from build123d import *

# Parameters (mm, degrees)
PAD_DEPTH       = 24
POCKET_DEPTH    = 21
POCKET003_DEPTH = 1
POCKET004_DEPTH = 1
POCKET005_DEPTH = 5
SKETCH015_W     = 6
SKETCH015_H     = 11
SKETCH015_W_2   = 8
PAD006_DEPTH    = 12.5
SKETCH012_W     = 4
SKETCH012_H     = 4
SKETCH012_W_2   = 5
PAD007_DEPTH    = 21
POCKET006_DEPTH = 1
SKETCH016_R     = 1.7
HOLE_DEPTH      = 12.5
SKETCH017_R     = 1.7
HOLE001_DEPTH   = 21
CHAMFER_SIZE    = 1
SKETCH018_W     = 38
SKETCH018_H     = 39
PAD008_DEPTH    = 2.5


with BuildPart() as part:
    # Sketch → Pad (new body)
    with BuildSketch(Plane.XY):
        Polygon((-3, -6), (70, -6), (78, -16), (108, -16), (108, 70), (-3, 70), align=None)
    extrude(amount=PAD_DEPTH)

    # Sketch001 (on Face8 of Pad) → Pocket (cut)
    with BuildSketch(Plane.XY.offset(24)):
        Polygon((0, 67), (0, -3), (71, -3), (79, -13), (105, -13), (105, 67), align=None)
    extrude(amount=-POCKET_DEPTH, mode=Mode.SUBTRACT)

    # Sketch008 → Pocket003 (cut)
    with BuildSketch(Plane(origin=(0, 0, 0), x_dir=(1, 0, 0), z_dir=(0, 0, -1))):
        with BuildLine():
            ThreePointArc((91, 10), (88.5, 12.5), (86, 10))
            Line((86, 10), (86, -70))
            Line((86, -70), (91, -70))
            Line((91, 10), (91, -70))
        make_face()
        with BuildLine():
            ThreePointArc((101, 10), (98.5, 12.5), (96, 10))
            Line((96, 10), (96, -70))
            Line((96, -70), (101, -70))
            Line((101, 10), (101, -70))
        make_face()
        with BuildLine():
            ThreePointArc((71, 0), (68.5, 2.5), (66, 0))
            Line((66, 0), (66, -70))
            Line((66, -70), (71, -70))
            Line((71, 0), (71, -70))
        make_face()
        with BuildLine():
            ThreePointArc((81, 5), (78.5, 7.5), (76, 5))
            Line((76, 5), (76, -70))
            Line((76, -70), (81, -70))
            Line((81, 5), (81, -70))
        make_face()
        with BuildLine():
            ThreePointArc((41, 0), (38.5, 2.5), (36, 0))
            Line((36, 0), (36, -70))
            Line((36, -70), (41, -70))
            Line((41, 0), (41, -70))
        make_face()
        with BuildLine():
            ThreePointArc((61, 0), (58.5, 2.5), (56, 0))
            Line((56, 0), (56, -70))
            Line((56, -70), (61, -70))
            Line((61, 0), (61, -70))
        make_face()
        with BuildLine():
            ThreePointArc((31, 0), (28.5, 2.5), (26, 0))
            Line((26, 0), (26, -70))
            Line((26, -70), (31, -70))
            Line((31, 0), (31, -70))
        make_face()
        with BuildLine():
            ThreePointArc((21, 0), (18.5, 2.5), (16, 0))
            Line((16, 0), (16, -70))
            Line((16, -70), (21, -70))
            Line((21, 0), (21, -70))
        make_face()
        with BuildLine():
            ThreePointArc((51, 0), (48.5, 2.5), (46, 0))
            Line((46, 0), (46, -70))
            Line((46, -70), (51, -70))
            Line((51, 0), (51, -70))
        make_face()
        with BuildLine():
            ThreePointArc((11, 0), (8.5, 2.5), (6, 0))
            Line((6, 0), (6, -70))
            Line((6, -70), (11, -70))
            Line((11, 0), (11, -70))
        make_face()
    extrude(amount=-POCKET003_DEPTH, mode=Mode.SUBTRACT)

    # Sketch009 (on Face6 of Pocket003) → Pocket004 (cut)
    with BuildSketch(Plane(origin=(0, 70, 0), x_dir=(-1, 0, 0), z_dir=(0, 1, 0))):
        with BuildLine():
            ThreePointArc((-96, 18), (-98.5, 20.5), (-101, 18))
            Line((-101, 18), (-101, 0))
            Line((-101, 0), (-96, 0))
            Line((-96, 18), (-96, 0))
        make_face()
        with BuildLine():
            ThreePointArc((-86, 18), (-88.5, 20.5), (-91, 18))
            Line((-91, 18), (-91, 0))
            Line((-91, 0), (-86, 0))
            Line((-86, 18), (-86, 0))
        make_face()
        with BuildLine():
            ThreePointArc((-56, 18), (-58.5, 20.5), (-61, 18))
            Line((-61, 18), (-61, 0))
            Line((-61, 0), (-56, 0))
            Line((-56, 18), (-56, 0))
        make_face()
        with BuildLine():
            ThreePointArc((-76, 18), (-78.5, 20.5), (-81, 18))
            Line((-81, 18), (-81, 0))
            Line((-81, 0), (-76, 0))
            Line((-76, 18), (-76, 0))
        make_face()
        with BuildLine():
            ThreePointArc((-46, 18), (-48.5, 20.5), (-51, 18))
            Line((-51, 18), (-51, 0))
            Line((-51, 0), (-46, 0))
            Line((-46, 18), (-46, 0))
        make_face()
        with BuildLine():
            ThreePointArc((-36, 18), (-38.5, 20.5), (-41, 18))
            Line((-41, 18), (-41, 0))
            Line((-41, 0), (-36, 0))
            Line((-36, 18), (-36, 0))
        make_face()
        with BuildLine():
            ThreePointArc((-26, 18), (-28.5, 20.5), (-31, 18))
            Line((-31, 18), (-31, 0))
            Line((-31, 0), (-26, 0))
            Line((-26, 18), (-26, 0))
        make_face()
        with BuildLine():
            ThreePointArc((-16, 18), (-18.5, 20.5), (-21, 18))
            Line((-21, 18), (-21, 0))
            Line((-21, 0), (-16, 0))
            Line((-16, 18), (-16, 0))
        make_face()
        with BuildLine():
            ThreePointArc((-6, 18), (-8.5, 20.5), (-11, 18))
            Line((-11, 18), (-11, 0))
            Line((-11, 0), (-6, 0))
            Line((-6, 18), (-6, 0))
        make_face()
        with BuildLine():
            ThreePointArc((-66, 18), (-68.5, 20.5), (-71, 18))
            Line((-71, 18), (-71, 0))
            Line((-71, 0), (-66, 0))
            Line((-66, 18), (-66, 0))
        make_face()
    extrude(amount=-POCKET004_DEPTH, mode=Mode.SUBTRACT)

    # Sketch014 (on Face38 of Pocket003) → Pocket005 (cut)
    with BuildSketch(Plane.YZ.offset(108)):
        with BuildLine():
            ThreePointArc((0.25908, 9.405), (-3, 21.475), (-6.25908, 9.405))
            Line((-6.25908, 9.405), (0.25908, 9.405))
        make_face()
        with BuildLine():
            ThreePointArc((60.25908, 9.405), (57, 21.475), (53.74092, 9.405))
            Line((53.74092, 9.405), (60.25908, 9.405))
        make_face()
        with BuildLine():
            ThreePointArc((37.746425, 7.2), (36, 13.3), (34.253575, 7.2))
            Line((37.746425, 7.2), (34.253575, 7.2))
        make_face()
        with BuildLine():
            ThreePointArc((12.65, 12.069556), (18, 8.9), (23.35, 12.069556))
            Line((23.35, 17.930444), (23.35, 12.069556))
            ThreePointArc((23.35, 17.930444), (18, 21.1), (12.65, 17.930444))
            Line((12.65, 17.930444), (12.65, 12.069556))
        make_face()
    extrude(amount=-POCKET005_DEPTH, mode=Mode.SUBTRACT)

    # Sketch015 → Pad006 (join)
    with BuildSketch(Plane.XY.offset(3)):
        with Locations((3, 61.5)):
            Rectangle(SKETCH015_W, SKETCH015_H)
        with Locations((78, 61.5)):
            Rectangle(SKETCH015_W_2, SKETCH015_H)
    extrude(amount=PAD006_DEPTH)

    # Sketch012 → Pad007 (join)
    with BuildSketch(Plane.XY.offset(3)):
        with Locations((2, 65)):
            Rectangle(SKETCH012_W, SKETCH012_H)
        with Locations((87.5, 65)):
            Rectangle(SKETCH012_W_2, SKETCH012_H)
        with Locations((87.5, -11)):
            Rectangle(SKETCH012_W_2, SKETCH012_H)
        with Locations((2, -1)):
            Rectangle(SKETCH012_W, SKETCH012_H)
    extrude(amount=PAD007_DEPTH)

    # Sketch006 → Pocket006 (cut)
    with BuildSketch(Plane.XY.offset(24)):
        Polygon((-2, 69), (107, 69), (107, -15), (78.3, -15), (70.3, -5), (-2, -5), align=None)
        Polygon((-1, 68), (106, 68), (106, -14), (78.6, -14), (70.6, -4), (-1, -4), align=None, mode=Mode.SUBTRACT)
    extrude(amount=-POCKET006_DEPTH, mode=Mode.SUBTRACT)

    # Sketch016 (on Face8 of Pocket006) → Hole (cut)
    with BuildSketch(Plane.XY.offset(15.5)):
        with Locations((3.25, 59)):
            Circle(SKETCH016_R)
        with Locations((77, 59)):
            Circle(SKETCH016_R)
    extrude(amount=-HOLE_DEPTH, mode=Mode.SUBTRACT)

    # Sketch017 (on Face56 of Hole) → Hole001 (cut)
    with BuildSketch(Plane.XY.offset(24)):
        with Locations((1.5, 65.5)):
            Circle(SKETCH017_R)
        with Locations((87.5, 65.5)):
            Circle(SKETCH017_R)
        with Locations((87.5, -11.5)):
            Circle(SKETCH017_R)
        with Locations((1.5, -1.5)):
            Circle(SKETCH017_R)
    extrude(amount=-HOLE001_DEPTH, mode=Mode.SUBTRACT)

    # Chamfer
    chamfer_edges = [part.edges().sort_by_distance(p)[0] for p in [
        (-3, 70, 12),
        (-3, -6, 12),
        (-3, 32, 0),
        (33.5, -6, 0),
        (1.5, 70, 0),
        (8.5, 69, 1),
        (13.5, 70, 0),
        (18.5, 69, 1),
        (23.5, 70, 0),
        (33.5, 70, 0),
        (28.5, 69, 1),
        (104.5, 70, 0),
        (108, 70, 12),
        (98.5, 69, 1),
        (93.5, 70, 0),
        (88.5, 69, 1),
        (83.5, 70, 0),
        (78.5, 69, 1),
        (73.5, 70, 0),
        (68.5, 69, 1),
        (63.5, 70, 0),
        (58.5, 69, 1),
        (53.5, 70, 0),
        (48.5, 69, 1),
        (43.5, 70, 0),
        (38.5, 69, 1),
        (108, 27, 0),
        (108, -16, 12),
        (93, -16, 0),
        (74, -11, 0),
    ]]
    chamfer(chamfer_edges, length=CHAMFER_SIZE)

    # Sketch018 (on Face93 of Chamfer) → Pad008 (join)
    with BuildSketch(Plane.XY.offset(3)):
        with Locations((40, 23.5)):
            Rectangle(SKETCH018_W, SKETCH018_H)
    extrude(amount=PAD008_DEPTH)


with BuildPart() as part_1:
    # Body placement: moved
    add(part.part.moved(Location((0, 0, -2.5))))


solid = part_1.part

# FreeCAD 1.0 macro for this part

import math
import FreeCAD as App
import Part
import Sketcher
Q = App.Units.Quantity


def edges_at(feature, points):
    """Names of the edges that pass closest to the given points."""
    edges = feature.Shape.Edges
    near = lambda p: min(range(len(edges)), key=lambda i: edges[i].distToShape(Part.Vertex(*p))[0])
    return sorted({f"Edge{near(p) + 1}" for p in points})


def add_polygon(sketch, points):
    """Adds a closed chain of lines whose ends are joined by coincident constraints."""
    first, n = sketch.GeometryCount, len(points)
    for a, b in zip(points, points[1:] + points[:1]):
        sketch.addGeometry(Part.LineSegment(App.Vector(*a, 0), App.Vector(*b, 0)), False)
    for i in range(n):
        sketch.addConstraint(Sketcher.Constraint("Coincident", first + i, 2, first + (i + 1) % n, 1))

doc = App.newDocument("Part")
params = doc.addObject("Spreadsheet::Sheet", "Params")
for row, (alias, value) in enumerate([
    ("sketch1_width", "73 mm"),
    ("sketch1_width2", "30 mm"),
    ("sketch1_width3", "111 mm"),
    ("sketch1_height", "86 mm"),
    ("sketch1_height2", "76 mm"),
    ("pad1_length", "24 mm"),
    ("sketch2_width", "71 mm"),
    ("sketch2_width2", "26 mm"),
    ("sketch2_width3", "105 mm"),
    ("sketch2_height", "70 mm"),
    ("sketch2_height2", "80 mm"),
    ("pocket1_length", "21 mm"),
    ("sketch3_radius", "2.5 mm"),
    ("sketch3_height", "80 mm"),
    ("sketch3_height2", "70 mm"),
    ("sketch3_height3", "75 mm"),
    ("pocket2_length", "1 mm"),
    ("sketch4_radius", "2.5 mm"),
    ("sketch4_height", "18 mm"),
    ("pocket3_length", "1 mm"),
    ("sketch5_radius", "3.3 mm"),
    ("sketch5_radius2", "6.1 mm"),
    ("pocket4_length", "5 mm"),
    ("sketch6_width", "6 mm"),
    ("sketch6_width2", "8 mm"),
    ("sketch6_height", "11 mm"),
    ("pad2_length", "12.5 mm"),
    ("sketch7_width", "4 mm"),
    ("sketch7_width2", "5 mm"),
    ("pad3_length", "21 mm"),
    ("sketch8_width", "109 mm"),
    ("sketch8_width2", "107 mm"),
    ("sketch8_height", "74 mm"),
    ("sketch8_height2", "84 mm"),
    ("sketch8_height3", "82 mm"),
    ("pocket5_length", "1 mm"),
    ("sketch9_diameter", "3.4 mm"),
    ("pocket6_length", "12.5 mm"),
    ("sketch10_diameter", "3.4 mm"),
    ("pocket7_length", "21 mm"),
    ("chamfer_size", "1 mm"),
    ("sketch11_width", "38 mm"),
    ("sketch11_height", "39 mm"),
    ("pad4_length", "2.5 mm"),
], start=1):
    params.set(f"A{row}", alias)
    params.set(f"B{row}", "=" + value)
    params.setAlias(f"B{row}", alias)

body = doc.addObject("PartDesign::Body", "Body")

sketch1 = body.newObject("Sketcher::SketchObject", "Sketch")
sketch1.AttachmentSupport = (doc.getObject("XY_Plane"), [""])
sketch1.MapMode = "FlatFace"
add_polygon(sketch1, [(-3, -6), (70, -6), (78, -16), (108, -16), (108, 70), (-3, 70)])
sketch1.addConstraint([
    Sketcher.Constraint("Horizontal", 0),
    Sketcher.Constraint("Horizontal", 2),
    Sketcher.Constraint("Vertical", 3),
    Sketcher.Constraint("Horizontal", 4),
    Sketcher.Constraint("Vertical", 5),
    Sketcher.Constraint("DistanceX", 0, 1, 0, 2, Q("73 mm")),
    Sketcher.Constraint("DistanceX", 2, 1, 2, 2, Q("30 mm")),
    Sketcher.Constraint("DistanceX", 4, 2, 4, 1, Q("111 mm")),
    Sketcher.Constraint("DistanceY", 3, 1, 3, 2, Q("86 mm")),
    Sketcher.Constraint("DistanceY", 5, 2, 5, 1, Q("76 mm")),
    Sketcher.Constraint("DistanceX", -1, 1, 0, 2, Q("70 mm")),
    Sketcher.Constraint("DistanceY", 0, 2, -1, 1, Q("6 mm")),
])
sketch1.setExpression("Constraints[11]", "Params.sketch1_width")
sketch1.setExpression("Constraints[12]", "Params.sketch1_width2")
sketch1.setExpression("Constraints[13]", "Params.sketch1_width3")
sketch1.setExpression("Constraints[14]", "Params.sketch1_height")
sketch1.setExpression("Constraints[15]", "Params.sketch1_height2")
pad1 = body.newObject("PartDesign::Pad", "Pad")
pad1.Profile = sketch1
pad1.setExpression("Length", "Params.pad1_length")

sketch2 = body.newObject("Sketcher::SketchObject", "Sketch001")
sketch2.AttachmentSupport = (doc.getObject("XY_Plane"), [""])
sketch2.MapMode = "FlatFace"
sketch2.AttachmentOffset = App.Placement(App.Vector(0, 0, 24), App.Rotation())
add_polygon(sketch2, [(0, 67), (0, -3), (71, -3), (79, -13), (105, -13), (105, 67)])
sketch2.addConstraint([
    Sketcher.Constraint("Vertical", 0),
    Sketcher.Constraint("Horizontal", 1),
    Sketcher.Constraint("Horizontal", 3),
    Sketcher.Constraint("Vertical", 4),
    Sketcher.Constraint("Horizontal", 5),
    Sketcher.Constraint("PointOnObject", 0, 2, -2),
    Sketcher.Constraint("DistanceX", 1, 1, 1, 2, Q("71 mm")),
    Sketcher.Constraint("DistanceX", 3, 1, 3, 2, Q("26 mm")),
    Sketcher.Constraint("DistanceX", 5, 2, 5, 1, Q("105 mm")),
    Sketcher.Constraint("DistanceY", 0, 2, 0, 1, Q("70 mm")),
    Sketcher.Constraint("DistanceY", 4, 1, 4, 2, Q("80 mm")),
    Sketcher.Constraint("DistanceY", 0, 2, -1, 1, Q("3 mm")),
])
sketch2.setExpression("Constraints[12]", "Params.sketch2_width")
sketch2.setExpression("Constraints[13]", "Params.sketch2_width2")
sketch2.setExpression("Constraints[14]", "Params.sketch2_width3")
sketch2.setExpression("Constraints[15]", "Params.sketch2_height")
sketch2.setExpression("Constraints[16]", "Params.sketch2_height2")
pocket1 = body.newObject("PartDesign::Pocket", "Pocket")
pocket1.Profile = sketch2
pocket1.setExpression("Length", "Params.pocket1_length")

sketch3 = body.newObject("Sketcher::SketchObject", "Sketch002")
sketch3.AttachmentSupport = (doc.getObject("XY_Plane"), [""])
sketch3.MapMode = "FlatFace"
sketch3.addGeometry([
    Part.ArcOfCircle(Part.Circle(App.Vector(88.5, -10, 0), App.Vector(0, 0, 1), 2.5), math.radians(180), math.radians(360)),
    Part.LineSegment(App.Vector(86, -10, 0), App.Vector(86, 70, 0)),
    Part.LineSegment(App.Vector(86, 70, 0), App.Vector(91, 70, 0)),
    Part.LineSegment(App.Vector(91, 70, 0), App.Vector(91, -10, 0)),
    Part.ArcOfCircle(Part.Circle(App.Vector(98.5, -10, 0), App.Vector(0, 0, 1), 2.5), math.radians(180), math.radians(360)),
    Part.LineSegment(App.Vector(96, -10, 0), App.Vector(96, 70, 0)),
    Part.LineSegment(App.Vector(96, 70, 0), App.Vector(101, 70, 0)),
    Part.LineSegment(App.Vector(101, 70, 0), App.Vector(101, -10, 0)),
    Part.ArcOfCircle(Part.Circle(App.Vector(68.5, 0, 0), App.Vector(0, 0, 1), 2.5), math.radians(180), math.radians(360)),
    Part.LineSegment(App.Vector(66, 0, 0), App.Vector(66, 70, 0)),
    Part.LineSegment(App.Vector(66, 70, 0), App.Vector(71, 70, 0)),
    Part.LineSegment(App.Vector(71, 70, 0), App.Vector(71, 0, 0)),
    Part.ArcOfCircle(Part.Circle(App.Vector(78.5, -5, 0), App.Vector(0, 0, 1), 2.5), math.radians(180), math.radians(360)),
    Part.LineSegment(App.Vector(76, -5, 0), App.Vector(76, 70, 0)),
    Part.LineSegment(App.Vector(76, 70, 0), App.Vector(81, 70, 0)),
    Part.LineSegment(App.Vector(81, 70, 0), App.Vector(81, -5, 0)),
    Part.ArcOfCircle(Part.Circle(App.Vector(38.5, 0, 0), App.Vector(0, 0, 1), 2.5), math.radians(180), math.radians(360)),
    Part.LineSegment(App.Vector(36, 0, 0), App.Vector(36, 70, 0)),
    Part.LineSegment(App.Vector(36, 70, 0), App.Vector(41, 70, 0)),
    Part.LineSegment(App.Vector(41, 70, 0), App.Vector(41, 0, 0)),
    Part.ArcOfCircle(Part.Circle(App.Vector(58.5, 0, 0), App.Vector(0, 0, 1), 2.5), math.radians(180), math.radians(360)),
    Part.LineSegment(App.Vector(56, 0, 0), App.Vector(56, 70, 0)),
    Part.LineSegment(App.Vector(56, 70, 0), App.Vector(61, 70, 0)),
    Part.LineSegment(App.Vector(61, 70, 0), App.Vector(61, 0, 0)),
    Part.ArcOfCircle(Part.Circle(App.Vector(28.5, 0, 0), App.Vector(0, 0, 1), 2.5), math.radians(180), math.radians(360)),
    Part.LineSegment(App.Vector(26, 0, 0), App.Vector(26, 70, 0)),
    Part.LineSegment(App.Vector(26, 70, 0), App.Vector(31, 70, 0)),
    Part.LineSegment(App.Vector(31, 70, 0), App.Vector(31, 0, 0)),
    Part.ArcOfCircle(Part.Circle(App.Vector(18.5, 0, 0), App.Vector(0, 0, 1), 2.5), math.radians(180), math.radians(360)),
    Part.LineSegment(App.Vector(16, 0, 0), App.Vector(16, 70, 0)),
    Part.LineSegment(App.Vector(16, 70, 0), App.Vector(21, 70, 0)),
    Part.LineSegment(App.Vector(21, 70, 0), App.Vector(21, 0, 0)),
    Part.ArcOfCircle(Part.Circle(App.Vector(48.5, 0, 0), App.Vector(0, 0, 1), 2.5), math.radians(180), math.radians(360)),
    Part.LineSegment(App.Vector(46, 0, 0), App.Vector(46, 70, 0)),
    Part.LineSegment(App.Vector(46, 70, 0), App.Vector(51, 70, 0)),
    Part.LineSegment(App.Vector(51, 70, 0), App.Vector(51, 0, 0)),
    Part.ArcOfCircle(Part.Circle(App.Vector(8.5, 0, 0), App.Vector(0, 0, 1), 2.5), math.radians(180), math.radians(360)),
    Part.LineSegment(App.Vector(6, 0, 0), App.Vector(6, 70, 0)),
    Part.LineSegment(App.Vector(6, 70, 0), App.Vector(11, 70, 0)),
    Part.LineSegment(App.Vector(11, 70, 0), App.Vector(11, 0, 0)),
], False)
sketch3.addConstraint([
    Sketcher.Constraint("Tangent", 0, 1, 1, 1),
    Sketcher.Constraint("Coincident", 1, 2, 2, 1),
    Sketcher.Constraint("Coincident", 2, 2, 3, 1),
    Sketcher.Constraint("Tangent", 3, 2, 0, 2),
    Sketcher.Constraint("Tangent", 4, 1, 5, 1),
    Sketcher.Constraint("Coincident", 5, 2, 6, 1),
    Sketcher.Constraint("Coincident", 6, 2, 7, 1),
    Sketcher.Constraint("Tangent", 7, 2, 4, 2),
    Sketcher.Constraint("Tangent", 8, 1, 9, 1),
    Sketcher.Constraint("Coincident", 9, 2, 10, 1),
    Sketcher.Constraint("Coincident", 10, 2, 11, 1),
    Sketcher.Constraint("Tangent", 11, 2, 8, 2),
    Sketcher.Constraint("Tangent", 12, 1, 13, 1),
    Sketcher.Constraint("Coincident", 13, 2, 14, 1),
    Sketcher.Constraint("Coincident", 14, 2, 15, 1),
    Sketcher.Constraint("Tangent", 15, 2, 12, 2),
    Sketcher.Constraint("Tangent", 16, 1, 17, 1),
    Sketcher.Constraint("Coincident", 17, 2, 18, 1),
    Sketcher.Constraint("Coincident", 18, 2, 19, 1),
    Sketcher.Constraint("Tangent", 19, 2, 16, 2),
    Sketcher.Constraint("Tangent", 20, 1, 21, 1),
    Sketcher.Constraint("Coincident", 21, 2, 22, 1),
    Sketcher.Constraint("Coincident", 22, 2, 23, 1),
    Sketcher.Constraint("Tangent", 23, 2, 20, 2),
    Sketcher.Constraint("Tangent", 24, 1, 25, 1),
    Sketcher.Constraint("Coincident", 25, 2, 26, 1),
    Sketcher.Constraint("Coincident", 26, 2, 27, 1),
    Sketcher.Constraint("Tangent", 27, 2, 24, 2),
    Sketcher.Constraint("Tangent", 28, 1, 29, 1),
    Sketcher.Constraint("Coincident", 29, 2, 30, 1),
    Sketcher.Constraint("Coincident", 30, 2, 31, 1),
    Sketcher.Constraint("Tangent", 31, 2, 28, 2),
    Sketcher.Constraint("Tangent", 32, 1, 33, 1),
    Sketcher.Constraint("Coincident", 33, 2, 34, 1),
    Sketcher.Constraint("Coincident", 34, 2, 35, 1),
    Sketcher.Constraint("Tangent", 35, 2, 32, 2),
    Sketcher.Constraint("Tangent", 36, 1, 37, 1),
    Sketcher.Constraint("Coincident", 37, 2, 38, 1),
    Sketcher.Constraint("Coincident", 38, 2, 39, 1),
    Sketcher.Constraint("Tangent", 39, 2, 36, 2),
    Sketcher.Constraint("Vertical", 1),
    Sketcher.Constraint("Horizontal", 2),
    Sketcher.Constraint("Vertical", 3),
    Sketcher.Constraint("Vertical", 5),
    Sketcher.Constraint("Horizontal", 6),
    Sketcher.Constraint("Vertical", 7),
    Sketcher.Constraint("Vertical", 9),
    Sketcher.Constraint("Horizontal", 10),
    Sketcher.Constraint("Vertical", 11),
    Sketcher.Constraint("Vertical", 13),
    Sketcher.Constraint("Horizontal", 14),
    Sketcher.Constraint("Vertical", 15),
    Sketcher.Constraint("Vertical", 17),
    Sketcher.Constraint("Horizontal", 18),
    Sketcher.Constraint("Vertical", 19),
    Sketcher.Constraint("Vertical", 21),
    Sketcher.Constraint("Horizontal", 22),
    Sketcher.Constraint("Vertical", 23),
    Sketcher.Constraint("Vertical", 25),
    Sketcher.Constraint("Horizontal", 26),
    Sketcher.Constraint("Vertical", 27),
    Sketcher.Constraint("Vertical", 29),
    Sketcher.Constraint("Horizontal", 30),
    Sketcher.Constraint("Vertical", 31),
    Sketcher.Constraint("Vertical", 33),
    Sketcher.Constraint("Horizontal", 34),
    Sketcher.Constraint("Vertical", 35),
    Sketcher.Constraint("Vertical", 37),
    Sketcher.Constraint("Horizontal", 38),
    Sketcher.Constraint("Vertical", 39),
    Sketcher.Constraint("Equal", 0, 4),
    Sketcher.Constraint("Equal", 4, 8),
    Sketcher.Constraint("Equal", 8, 12),
    Sketcher.Constraint("Equal", 12, 16),
    Sketcher.Constraint("Equal", 16, 20),
    Sketcher.Constraint("Equal", 20, 24),
    Sketcher.Constraint("Equal", 24, 28),
    Sketcher.Constraint("Equal", 28, 32),
    Sketcher.Constraint("Equal", 32, 36),
    Sketcher.Constraint("PointOnObject", 8, 3, -1),
    Sketcher.Constraint("PointOnObject", 16, 3, -1),
    Sketcher.Constraint("PointOnObject", 20, 3, -1),
    Sketcher.Constraint("PointOnObject", 24, 3, -1),
    Sketcher.Constraint("PointOnObject", 28, 3, -1),
    Sketcher.Constraint("PointOnObject", 32, 3, -1),
    Sketcher.Constraint("PointOnObject", 36, 3, -1),
    Sketcher.Constraint("Horizontal", 0, 3, 4, 3),
    Sketcher.Constraint("Horizontal", 2, 2, 5, 2),
    Sketcher.Constraint("Horizontal", 6, 2, 9, 2),
    Sketcher.Constraint("Horizontal", 10, 2, 13, 2),
    Sketcher.Constraint("Horizontal", 14, 2, 17, 2),
    Sketcher.Constraint("Horizontal", 18, 2, 21, 2),
    Sketcher.Constraint("Horizontal", 22, 2, 25, 2),
    Sketcher.Constraint("Horizontal", 26, 2, 29, 2),
    Sketcher.Constraint("Horizontal", 30, 2, 33, 2),
    Sketcher.Constraint("Horizontal", 34, 2, 37, 2),
    Sketcher.Constraint("Radius", 0, Q("2.5 mm")),
    Sketcher.Constraint("DistanceY", 1, 1, 1, 2, Q("80 mm")),
    Sketcher.Constraint("DistanceY", 9, 1, 9, 2, Q("70 mm")),
    Sketcher.Constraint("DistanceY", 13, 1, 13, 2, Q("75 mm")),
    Sketcher.Constraint("DistanceX", -1, 1, 0, 1, Q("86 mm")),
    Sketcher.Constraint("DistanceX", -1, 1, 4, 1, Q("96 mm")),
    Sketcher.Constraint("DistanceX", -1, 1, 8, 1, Q("66 mm")),
    Sketcher.Constraint("DistanceX", -1, 1, 12, 1, Q("76 mm")),
    Sketcher.Constraint("DistanceX", -1, 1, 16, 1, Q("36 mm")),
    Sketcher.Constraint("DistanceX", -1, 1, 20, 1, Q("56 mm")),
    Sketcher.Constraint("DistanceX", -1, 1, 24, 1, Q("26 mm")),
    Sketcher.Constraint("DistanceX", -1, 1, 28, 1, Q("16 mm")),
    Sketcher.Constraint("DistanceX", -1, 1, 32, 1, Q("46 mm")),
    Sketcher.Constraint("DistanceX", -1, 1, 36, 1, Q("6 mm")),
])
sketch3.setExpression("Constraints[96]", "Params.sketch3_radius")
sketch3.setExpression("Constraints[97]", "Params.sketch3_height")
sketch3.setExpression("Constraints[98]", "Params.sketch3_height2")
sketch3.setExpression("Constraints[99]", "Params.sketch3_height3")
pocket2 = body.newObject("PartDesign::Pocket", "Pocket001")
pocket2.Profile = sketch3
pocket2.setExpression("Length", "Params.pocket2_length")
pocket2.Reversed = True

sketch4 = body.newObject("Sketcher::SketchObject", "Sketch003")
sketch4.AttachmentSupport = (doc.getObject("XZ_Plane"), [""])
sketch4.MapMode = "FlatFace"
sketch4.AttachmentOffset = App.Placement(App.Vector(0, 0, -70), App.Rotation())
sketch4.addGeometry([
    Part.ArcOfCircle(Part.Circle(App.Vector(98.5, 18, 0), App.Vector(0, 0, 1), 2.5), math.radians(0), math.radians(180)),
    Part.LineSegment(App.Vector(101, 18, 0), App.Vector(101, 0, 0)),
    Part.LineSegment(App.Vector(101, 0, 0), App.Vector(96, 0, 0)),
    Part.LineSegment(App.Vector(96, 0, 0), App.Vector(96, 18, 0)),
    Part.ArcOfCircle(Part.Circle(App.Vector(88.5, 18, 0), App.Vector(0, 0, 1), 2.5), math.radians(0), math.radians(180)),
    Part.LineSegment(App.Vector(91, 18, 0), App.Vector(91, 0, 0)),
    Part.LineSegment(App.Vector(91, 0, 0), App.Vector(86, 0, 0)),
    Part.LineSegment(App.Vector(86, 0, 0), App.Vector(86, 18, 0)),
    Part.ArcOfCircle(Part.Circle(App.Vector(58.5, 18, 0), App.Vector(0, 0, 1), 2.5), math.radians(0), math.radians(180)),
    Part.LineSegment(App.Vector(61, 18, 0), App.Vector(61, 0, 0)),
    Part.LineSegment(App.Vector(61, 0, 0), App.Vector(56, 0, 0)),
    Part.LineSegment(App.Vector(56, 0, 0), App.Vector(56, 18, 0)),
    Part.ArcOfCircle(Part.Circle(App.Vector(78.5, 18, 0), App.Vector(0, 0, 1), 2.5), math.radians(0), math.radians(180)),
    Part.LineSegment(App.Vector(81, 18, 0), App.Vector(81, 0, 0)),
    Part.LineSegment(App.Vector(81, 0, 0), App.Vector(76, 0, 0)),
    Part.LineSegment(App.Vector(76, 0, 0), App.Vector(76, 18, 0)),
    Part.ArcOfCircle(Part.Circle(App.Vector(48.5, 18, 0), App.Vector(0, 0, 1), 2.5), math.radians(0), math.radians(180)),
    Part.LineSegment(App.Vector(51, 18, 0), App.Vector(51, 0, 0)),
    Part.LineSegment(App.Vector(51, 0, 0), App.Vector(46, 0, 0)),
    Part.LineSegment(App.Vector(46, 0, 0), App.Vector(46, 18, 0)),
    Part.ArcOfCircle(Part.Circle(App.Vector(38.5, 18, 0), App.Vector(0, 0, 1), 2.5), math.radians(0), math.radians(180)),
    Part.LineSegment(App.Vector(41, 18, 0), App.Vector(41, 0, 0)),
    Part.LineSegment(App.Vector(41, 0, 0), App.Vector(36, 0, 0)),
    Part.LineSegment(App.Vector(36, 0, 0), App.Vector(36, 18, 0)),
    Part.ArcOfCircle(Part.Circle(App.Vector(28.5, 18, 0), App.Vector(0, 0, 1), 2.5), math.radians(0), math.radians(180)),
    Part.LineSegment(App.Vector(31, 18, 0), App.Vector(31, 0, 0)),
    Part.LineSegment(App.Vector(31, 0, 0), App.Vector(26, 0, 0)),
    Part.LineSegment(App.Vector(26, 0, 0), App.Vector(26, 18, 0)),
    Part.ArcOfCircle(Part.Circle(App.Vector(18.5, 18, 0), App.Vector(0, 0, 1), 2.5), math.radians(0), math.radians(180)),
    Part.LineSegment(App.Vector(21, 18, 0), App.Vector(21, 0, 0)),
    Part.LineSegment(App.Vector(21, 0, 0), App.Vector(16, 0, 0)),
    Part.LineSegment(App.Vector(16, 0, 0), App.Vector(16, 18, 0)),
    Part.ArcOfCircle(Part.Circle(App.Vector(8.5, 18, 0), App.Vector(0, 0, 1), 2.5), math.radians(0), math.radians(180)),
    Part.LineSegment(App.Vector(11, 18, 0), App.Vector(11, 0, 0)),
    Part.LineSegment(App.Vector(11, 0, 0), App.Vector(6, 0, 0)),
    Part.LineSegment(App.Vector(6, 0, 0), App.Vector(6, 18, 0)),
    Part.ArcOfCircle(Part.Circle(App.Vector(68.5, 18, 0), App.Vector(0, 0, 1), 2.5), math.radians(0), math.radians(180)),
    Part.LineSegment(App.Vector(71, 18, 0), App.Vector(71, 0, 0)),
    Part.LineSegment(App.Vector(71, 0, 0), App.Vector(66, 0, 0)),
    Part.LineSegment(App.Vector(66, 0, 0), App.Vector(66, 18, 0)),
], False)
sketch4.addConstraint([
    Sketcher.Constraint("Tangent", 0, 1, 1, 1),
    Sketcher.Constraint("Coincident", 1, 2, 2, 1),
    Sketcher.Constraint("Coincident", 2, 2, 3, 1),
    Sketcher.Constraint("Tangent", 3, 2, 0, 2),
    Sketcher.Constraint("Tangent", 4, 1, 5, 1),
    Sketcher.Constraint("Coincident", 5, 2, 6, 1),
    Sketcher.Constraint("Coincident", 6, 2, 7, 1),
    Sketcher.Constraint("Tangent", 7, 2, 4, 2),
    Sketcher.Constraint("Tangent", 8, 1, 9, 1),
    Sketcher.Constraint("Coincident", 9, 2, 10, 1),
    Sketcher.Constraint("Coincident", 10, 2, 11, 1),
    Sketcher.Constraint("Tangent", 11, 2, 8, 2),
    Sketcher.Constraint("Tangent", 12, 1, 13, 1),
    Sketcher.Constraint("Coincident", 13, 2, 14, 1),
    Sketcher.Constraint("Coincident", 14, 2, 15, 1),
    Sketcher.Constraint("Tangent", 15, 2, 12, 2),
    Sketcher.Constraint("Tangent", 16, 1, 17, 1),
    Sketcher.Constraint("Coincident", 17, 2, 18, 1),
    Sketcher.Constraint("Coincident", 18, 2, 19, 1),
    Sketcher.Constraint("Tangent", 19, 2, 16, 2),
    Sketcher.Constraint("Tangent", 20, 1, 21, 1),
    Sketcher.Constraint("Coincident", 21, 2, 22, 1),
    Sketcher.Constraint("Coincident", 22, 2, 23, 1),
    Sketcher.Constraint("Tangent", 23, 2, 20, 2),
    Sketcher.Constraint("Tangent", 24, 1, 25, 1),
    Sketcher.Constraint("Coincident", 25, 2, 26, 1),
    Sketcher.Constraint("Coincident", 26, 2, 27, 1),
    Sketcher.Constraint("Tangent", 27, 2, 24, 2),
    Sketcher.Constraint("Tangent", 28, 1, 29, 1),
    Sketcher.Constraint("Coincident", 29, 2, 30, 1),
    Sketcher.Constraint("Coincident", 30, 2, 31, 1),
    Sketcher.Constraint("Tangent", 31, 2, 28, 2),
    Sketcher.Constraint("Tangent", 32, 1, 33, 1),
    Sketcher.Constraint("Coincident", 33, 2, 34, 1),
    Sketcher.Constraint("Coincident", 34, 2, 35, 1),
    Sketcher.Constraint("Tangent", 35, 2, 32, 2),
    Sketcher.Constraint("Tangent", 36, 1, 37, 1),
    Sketcher.Constraint("Coincident", 37, 2, 38, 1),
    Sketcher.Constraint("Coincident", 38, 2, 39, 1),
    Sketcher.Constraint("Tangent", 39, 2, 36, 2),
    Sketcher.Constraint("Vertical", 1),
    Sketcher.Constraint("Horizontal", 2),
    Sketcher.Constraint("Vertical", 3),
    Sketcher.Constraint("Vertical", 5),
    Sketcher.Constraint("Horizontal", 6),
    Sketcher.Constraint("Vertical", 7),
    Sketcher.Constraint("Vertical", 9),
    Sketcher.Constraint("Horizontal", 10),
    Sketcher.Constraint("Vertical", 11),
    Sketcher.Constraint("Vertical", 13),
    Sketcher.Constraint("Horizontal", 14),
    Sketcher.Constraint("Vertical", 15),
    Sketcher.Constraint("Vertical", 17),
    Sketcher.Constraint("Horizontal", 18),
    Sketcher.Constraint("Vertical", 19),
    Sketcher.Constraint("Vertical", 21),
    Sketcher.Constraint("Horizontal", 22),
    Sketcher.Constraint("Vertical", 23),
    Sketcher.Constraint("Vertical", 25),
    Sketcher.Constraint("Horizontal", 26),
    Sketcher.Constraint("Vertical", 27),
    Sketcher.Constraint("Vertical", 29),
    Sketcher.Constraint("Horizontal", 30),
    Sketcher.Constraint("Vertical", 31),
    Sketcher.Constraint("Vertical", 33),
    Sketcher.Constraint("Horizontal", 34),
    Sketcher.Constraint("Vertical", 35),
    Sketcher.Constraint("Vertical", 37),
    Sketcher.Constraint("Horizontal", 38),
    Sketcher.Constraint("Vertical", 39),
    Sketcher.Constraint("Equal", 0, 4),
    Sketcher.Constraint("Equal", 4, 8),
    Sketcher.Constraint("Equal", 8, 12),
    Sketcher.Constraint("Equal", 12, 16),
    Sketcher.Constraint("Equal", 16, 20),
    Sketcher.Constraint("Equal", 20, 24),
    Sketcher.Constraint("Equal", 24, 28),
    Sketcher.Constraint("Equal", 28, 32),
    Sketcher.Constraint("Equal", 32, 36),
    Sketcher.Constraint("PointOnObject", 1, 2, -1),
    Sketcher.Constraint("PointOnObject", 5, 2, -1),
    Sketcher.Constraint("PointOnObject", 9, 2, -1),
    Sketcher.Constraint("PointOnObject", 13, 2, -1),
    Sketcher.Constraint("PointOnObject", 17, 2, -1),
    Sketcher.Constraint("PointOnObject", 21, 2, -1),
    Sketcher.Constraint("PointOnObject", 25, 2, -1),
    Sketcher.Constraint("PointOnObject", 29, 2, -1),
    Sketcher.Constraint("PointOnObject", 33, 2, -1),
    Sketcher.Constraint("PointOnObject", 37, 2, -1),
    Sketcher.Constraint("Horizontal", 0, 3, 4, 3),
    Sketcher.Constraint("Horizontal", 4, 3, 8, 3),
    Sketcher.Constraint("Horizontal", 8, 3, 12, 3),
    Sketcher.Constraint("Horizontal", 12, 3, 16, 3),
    Sketcher.Constraint("Horizontal", 16, 3, 20, 3),
    Sketcher.Constraint("Horizontal", 20, 3, 24, 3),
    Sketcher.Constraint("Horizontal", 24, 3, 28, 3),
    Sketcher.Constraint("Horizontal", 28, 3, 32, 3),
    Sketcher.Constraint("Horizontal", 32, 3, 36, 3),
    Sketcher.Constraint("Radius", 0, Q("2.5 mm")),
    Sketcher.Constraint("DistanceY", 1, 2, 1, 1, Q("18 mm")),
    Sketcher.Constraint("DistanceX", -1, 1, 0, 1, Q("101 mm")),
    Sketcher.Constraint("DistanceX", -1, 1, 4, 1, Q("91 mm")),
    Sketcher.Constraint("DistanceX", -1, 1, 8, 1, Q("61 mm")),
    Sketcher.Constraint("DistanceX", -1, 1, 12, 1, Q("81 mm")),
    Sketcher.Constraint("DistanceX", -1, 1, 16, 1, Q("51 mm")),
    Sketcher.Constraint("DistanceX", -1, 1, 20, 1, Q("41 mm")),
    Sketcher.Constraint("DistanceX", -1, 1, 24, 1, Q("31 mm")),
    Sketcher.Constraint("DistanceX", -1, 1, 28, 1, Q("21 mm")),
    Sketcher.Constraint("DistanceX", -1, 1, 32, 1, Q("11 mm")),
    Sketcher.Constraint("DistanceX", -1, 1, 36, 1, Q("71 mm")),
])
sketch4.setExpression("Constraints[98]", "Params.sketch4_radius")
sketch4.setExpression("Constraints[99]", "Params.sketch4_height")
pocket3 = body.newObject("PartDesign::Pocket", "Pocket002")
pocket3.Profile = sketch4
pocket3.setExpression("Length", "Params.pocket3_length")
pocket3.Reversed = True

sketch5 = body.newObject("Sketcher::SketchObject", "Sketch004")
sketch5.AttachmentSupport = (doc.getObject("YZ_Plane"), [""])
sketch5.MapMode = "FlatFace"
sketch5.AttachmentOffset = App.Placement(App.Vector(0, 0, 108), App.Rotation())
sketch5.addGeometry([
    Part.ArcOfCircle(Part.Circle(App.Vector(-3, 15, 0), App.Vector(0, 0, 1), 6.5), math.radians(-60), math.radians(240)),
    Part.LineSegment(App.Vector(-6.3, 9.4, 0), App.Vector(0.3, 9.4, 0)),
    Part.ArcOfCircle(Part.Circle(App.Vector(57, 15, 0), App.Vector(0, 0, 1), 6.5), math.radians(-60), math.radians(240)),
    Part.LineSegment(App.Vector(53.7, 9.4, 0), App.Vector(60.3, 9.4, 0)),
    Part.ArcOfCircle(Part.Circle(App.Vector(36, 10, 0), App.Vector(0, 0, 1), 3.3), math.radians(-58), math.radians(238)),
    Part.LineSegment(App.Vector(34.3, 7.2, 0), App.Vector(37.7, 7.2, 0)),
    Part.ArcOfCircle(Part.Circle(App.Vector(18, 15, 0), App.Vector(0, 0, 1), 6.1), math.radians(-151), math.radians(-29)),
    Part.LineSegment(App.Vector(23.4, 12.1, 0), App.Vector(23.4, 17.9, 0)),
    Part.ArcOfCircle(Part.Circle(App.Vector(18, 15, 0), App.Vector(0, 0, 1), 6.1), math.radians(29), math.radians(151)),
    Part.LineSegment(App.Vector(12.7, 17.9, 0), App.Vector(12.7, 12.1, 0)),
], False)
sketch5.addConstraint([
    Sketcher.Constraint("Coincident", 0, 1, 1, 2),
    Sketcher.Constraint("Coincident", 1, 1, 0, 2),
    Sketcher.Constraint("Coincident", 2, 1, 3, 2),
    Sketcher.Constraint("Coincident", 3, 1, 2, 2),
    Sketcher.Constraint("Coincident", 4, 1, 5, 2),
    Sketcher.Constraint("Coincident", 5, 1, 4, 2),
    Sketcher.Constraint("Coincident", 6, 2, 7, 1),
    Sketcher.Constraint("Coincident", 7, 2, 8, 1),
    Sketcher.Constraint("Coincident", 8, 2, 9, 1),
    Sketcher.Constraint("Coincident", 9, 2, 6, 1),
    Sketcher.Constraint("Horizontal", 1),
    Sketcher.Constraint("Horizontal", 3),
    Sketcher.Constraint("Horizontal", 5),
    Sketcher.Constraint("Vertical", 7),
    Sketcher.Constraint("Vertical", 9),
    Sketcher.Constraint("Coincident", 8, 3, 6, 3),
    Sketcher.Constraint("Equal", 0, 2),
    Sketcher.Constraint("Equal", 6, 8),
    Sketcher.Constraint("Horizontal", 0, 3, 2, 3),
    Sketcher.Constraint("Horizontal", 2, 3, 6, 3),
    Sketcher.Constraint("Horizontal", 1, 1, 2, 1),
    Sketcher.Constraint("Horizontal", 7, 2, 8, 2),
    Sketcher.Constraint("Radius", 4, Q("3.3 mm")),
    Sketcher.Constraint("Radius", 6, Q("6.1 mm")),
    Sketcher.Constraint("DistanceX", 0, 3, -1, 1, Q("3 mm")),
    Sketcher.Constraint("DistanceY", -1, 1, 0, 3, Q("15 mm")),
    Sketcher.Constraint("DistanceX", -1, 1, 2, 3, Q("57 mm")),
    Sketcher.Constraint("DistanceX", -1, 1, 4, 3, Q("36 mm")),
    Sketcher.Constraint("DistanceY", -1, 1, 4, 3, Q("10 mm")),
    Sketcher.Constraint("DistanceX", -1, 1, 6, 3, Q("18 mm")),
    Sketcher.Constraint("Radius", 0, Q("6.475 mm")),
    Sketcher.Constraint("DistanceY", -1, 1, 4, 1, Q("7.2 mm")),
    Sketcher.Constraint("DistanceX", 8, 2, 7, 2, Q("10.7 mm")),
    Sketcher.Constraint("DistanceY", -1, 1, 0, 1, Q("9.405 mm")),
])
sketch5.setExpression("Constraints[22]", "Params.sketch5_radius")
sketch5.setExpression("Constraints[23]", "Params.sketch5_radius2")
pocket4 = body.newObject("PartDesign::Pocket", "Pocket003")
pocket4.Profile = sketch5
pocket4.setExpression("Length", "Params.pocket4_length")

sketch6 = body.newObject("Sketcher::SketchObject", "Sketch005")
sketch6.AttachmentSupport = (doc.getObject("XY_Plane"), [""])
sketch6.MapMode = "FlatFace"
sketch6.AttachmentOffset = App.Placement(App.Vector(0, 0, 3), App.Rotation())
add_polygon(sketch6, [(0, 67), (0, 56), (6, 56), (6, 67)])
add_polygon(sketch6, [(74, 67), (74, 56), (82, 56), (82, 67)])
sketch6.addConstraint([
    Sketcher.Constraint("Vertical", 0),
    Sketcher.Constraint("Horizontal", 1),
    Sketcher.Constraint("Vertical", 2),
    Sketcher.Constraint("Horizontal", 3),
    Sketcher.Constraint("Vertical", 4),
    Sketcher.Constraint("Horizontal", 5),
    Sketcher.Constraint("Vertical", 6),
    Sketcher.Constraint("Horizontal", 7),
    Sketcher.Constraint("PointOnObject", 0, 2, -2),
    Sketcher.Constraint("Horizontal", 1, 2, 4, 2),
    Sketcher.Constraint("Horizontal", 3, 2, 6, 2),
    Sketcher.Constraint("DistanceX", 1, 1, 1, 2, Q("6 mm")),
    Sketcher.Constraint("DistanceX", 5, 1, 5, 2, Q("8 mm")),
    Sketcher.Constraint("DistanceY", 0, 2, 0, 1, Q("11 mm")),
    Sketcher.Constraint("DistanceY", -1, 1, 0, 2, Q("56 mm")),
    Sketcher.Constraint("DistanceX", -1, 1, 4, 2, Q("74 mm")),
])
sketch6.setExpression("Constraints[19]", "Params.sketch6_width")
sketch6.setExpression("Constraints[20]", "Params.sketch6_width2")
sketch6.setExpression("Constraints[21]", "Params.sketch6_height")
pad2 = body.newObject("PartDesign::Pad", "Pad001")
pad2.Profile = sketch6
pad2.setExpression("Length", "Params.pad2_length")

sketch7 = body.newObject("Sketcher::SketchObject", "Sketch006")
sketch7.AttachmentSupport = (doc.getObject("XY_Plane"), [""])
sketch7.MapMode = "FlatFace"
sketch7.AttachmentOffset = App.Placement(App.Vector(0, 0, 3), App.Rotation())
add_polygon(sketch7, [(0, 67), (0, 63), (4, 63), (4, 67)])
add_polygon(sketch7, [(85, 67), (85, 63), (90, 63), (90, 67)])
add_polygon(sketch7, [(85, -9), (85, -13), (90, -13), (90, -9)])
add_polygon(sketch7, [(0, 1), (0, -3), (4, -3), (4, 1)])
sketch7.addConstraint([
    Sketcher.Constraint("Vertical", 0),
    Sketcher.Constraint("Horizontal", 1),
    Sketcher.Constraint("Vertical", 2),
    Sketcher.Constraint("Horizontal", 3),
    Sketcher.Constraint("Vertical", 4),
    Sketcher.Constraint("Horizontal", 5),
    Sketcher.Constraint("Vertical", 6),
    Sketcher.Constraint("Horizontal", 7),
    Sketcher.Constraint("Vertical", 8),
    Sketcher.Constraint("Horizontal", 9),
    Sketcher.Constraint("Vertical", 10),
    Sketcher.Constraint("Horizontal", 11),
    Sketcher.Constraint("Vertical", 12),
    Sketcher.Constraint("Horizontal", 13),
    Sketcher.Constraint("Vertical", 14),
    Sketcher.Constraint("Horizontal", 15),
    Sketcher.Constraint("PointOnObject", 0, 2, -2),
    Sketcher.Constraint("PointOnObject", 12, 2, -2),
    Sketcher.Constraint("Horizontal", 1, 2, 4, 2),
    Sketcher.Constraint("Horizontal", 3, 2, 6, 2),
    Sketcher.Constraint("Vertical", 7, 2, 8, 2),
    Sketcher.Constraint("Vertical", 6, 2, 9, 2),
    Sketcher.Constraint("Vertical", 2, 2, 13, 2),
    Sketcher.Constraint("Equal", 15, 0),
    Sketcher.Constraint("Equal", 6, 8),
    Sketcher.Constraint("Equal", 10, 12),
    Sketcher.Constraint("DistanceX", 1, 1, 1, 2, Q("4 mm")),
    Sketcher.Constraint("DistanceX", 5, 1, 5, 2, Q("5 mm")),
    Sketcher.Constraint("DistanceY", -1, 1, 0, 2, Q("63 mm")),
    Sketcher.Constraint("DistanceX", -1, 1, 4, 2, Q("85 mm")),
    Sketcher.Constraint("DistanceY", 8, 2, -1, 1, Q("13 mm")),
    Sketcher.Constraint("DistanceY", 12, 2, -1, 1, Q("3 mm")),
])
sketch7.setExpression("Constraints[42]", "Params.sketch7_width")
sketch7.setExpression("Constraints[43]", "Params.sketch7_width2")
pad3 = body.newObject("PartDesign::Pad", "Pad002")
pad3.Profile = sketch7
pad3.setExpression("Length", "Params.pad3_length")

sketch8 = body.newObject("Sketcher::SketchObject", "Sketch007")
sketch8.AttachmentSupport = (doc.getObject("XY_Plane"), [""])
sketch8.MapMode = "FlatFace"
sketch8.AttachmentOffset = App.Placement(App.Vector(0, 0, 24), App.Rotation())
add_polygon(sketch8, [(107, 69), (-2, 69), (-2, -5), (70, -5), (78, -15), (107, -15)])
add_polygon(sketch8, [(-1, 68), (106, 68), (106, -14), (79, -14), (71, -4), (-1, -4)])
sketch8.addConstraint([
    Sketcher.Constraint("Horizontal", 0),
    Sketcher.Constraint("Vertical", 1),
    Sketcher.Constraint("Horizontal", 2),
    Sketcher.Constraint("Horizontal", 4),
    Sketcher.Constraint("Vertical", 5),
    Sketcher.Constraint("Horizontal", 6),
    Sketcher.Constraint("Vertical", 7),
    Sketcher.Constraint("Horizontal", 8),
    Sketcher.Constraint("Horizontal", 10),
    Sketcher.Constraint("Vertical", 11),
    Sketcher.Constraint("Parallel", 3, 9),
    Sketcher.Constraint("Equal", 3, 9),
    Sketcher.Constraint("DistanceX", 0, 2, 0, 1, Q("109 mm")),
    Sketcher.Constraint("DistanceX", 6, 1, 6, 2, Q("107 mm")),
    Sketcher.Constraint("DistanceY", 1, 2, 1, 1, Q("74 mm")),
    Sketcher.Constraint("DistanceY", 5, 1, 5, 2, Q("84 mm")),
    Sketcher.Constraint("DistanceY", 7, 2, 7, 1, Q("82 mm")),
    Sketcher.Constraint("DistanceX", 2, 1, 2, 2, Q("72.3 mm")),
    Sketcher.Constraint("DistanceX", 4, 1, 4, 2, Q("28.7 mm")),
    Sketcher.Constraint("DistanceX", 8, 2, 8, 1, Q("27.4 mm")),
    Sketcher.Constraint("DistanceX", 0, 2, -1, 1, Q("2 mm")),
    Sketcher.Constraint("DistanceY", -1, 1, 0, 2, Q("69 mm")),
    Sketcher.Constraint("DistanceX", -1, 1, 6, 2, Q("106 mm")),
    Sketcher.Constraint("DistanceY", -1, 1, 6, 2, Q("68 mm")),
])
sketch8.setExpression("Constraints[24]", "Params.sketch8_width")
sketch8.setExpression("Constraints[25]", "Params.sketch8_width2")
sketch8.setExpression("Constraints[26]", "Params.sketch8_height")
sketch8.setExpression("Constraints[27]", "Params.sketch8_height2")
sketch8.setExpression("Constraints[28]", "Params.sketch8_height3")
pocket5 = body.newObject("PartDesign::Pocket", "Pocket004")
pocket5.Profile = sketch8
pocket5.setExpression("Length", "Params.pocket5_length")

sketch9 = body.newObject("Sketcher::SketchObject", "Sketch008")
sketch9.AttachmentSupport = (doc.getObject("XY_Plane"), [""])
sketch9.MapMode = "FlatFace"
sketch9.AttachmentOffset = App.Placement(App.Vector(0, 0, 15.5), App.Rotation())
sketch9.addGeometry([
    Part.Circle(App.Vector(3.2, 59, 0), App.Vector(0, 0, 1), 1.7),
    Part.Circle(App.Vector(77, 59, 0), App.Vector(0, 0, 1), 1.7),
], False)
sketch9.addConstraint([
    Sketcher.Constraint("Equal", 0, 1),
    Sketcher.Constraint("Horizontal", 0, 3, 1, 3),
    Sketcher.Constraint("Diameter", 0, Q("3.4 mm")),
    Sketcher.Constraint("DistanceY", -1, 1, 0, 3, Q("59 mm")),
    Sketcher.Constraint("DistanceX", -1, 1, 1, 3, Q("77 mm")),
    Sketcher.Constraint("DistanceX", -1, 1, 0, 3, Q("3.25 mm")),
])
sketch9.setExpression("Constraints[2]", "Params.sketch9_diameter")
pocket6 = body.newObject("PartDesign::Pocket", "Pocket005")
pocket6.Profile = sketch9
pocket6.setExpression("Length", "Params.pocket6_length")

sketch10 = body.newObject("Sketcher::SketchObject", "Sketch009")
sketch10.AttachmentSupport = (doc.getObject("XY_Plane"), [""])
sketch10.MapMode = "FlatFace"
sketch10.AttachmentOffset = App.Placement(App.Vector(0, 0, 24), App.Rotation())
sketch10.addGeometry([
    Part.Circle(App.Vector(1.5, 65.5, 0), App.Vector(0, 0, 1), 1.7),
    Part.Circle(App.Vector(87.5, 65.5, 0), App.Vector(0, 0, 1), 1.7),
    Part.Circle(App.Vector(87.5, -11.5, 0), App.Vector(0, 0, 1), 1.7),
    Part.Circle(App.Vector(1.5, -1.5, 0), App.Vector(0, 0, 1), 1.7),
], False)
sketch10.addConstraint([
    Sketcher.Constraint("Equal", 0, 1),
    Sketcher.Constraint("Equal", 1, 2),
    Sketcher.Constraint("Equal", 2, 3),
    Sketcher.Constraint("Horizontal", 0, 3, 1, 3),
    Sketcher.Constraint("Vertical", 1, 3, 2, 3),
    Sketcher.Constraint("Vertical", 0, 3, 3, 3),
    Sketcher.Constraint("Diameter", 0, Q("3.4 mm")),
    Sketcher.Constraint("DistanceX", 0, 3, 1, 3, Q("86 mm")),
    Sketcher.Constraint("DistanceY", 2, 3, 1, 3, Q("77 mm")),
    Sketcher.Constraint("DistanceY", 3, 3, 0, 3, Q("67 mm")),
    Sketcher.Constraint("DistanceX", -1, 1, 0, 3, Q("1.5 mm")),
    Sketcher.Constraint("DistanceY", -1, 1, 0, 3, Q("65.5 mm")),
])
sketch10.setExpression("Constraints[6]", "Params.sketch10_diameter")
pocket7 = body.newObject("PartDesign::Pocket", "Pocket006")
pocket7.Profile = sketch10
pocket7.setExpression("Length", "Params.pocket7_length")
doc.recompute()

chamfer = body.newObject("PartDesign::Chamfer", "Chamfer")
chamfer.Base = (pocket7, edges_at(pocket7, [
    (-3, 70, 12),
    (-3, -6, 12),
    (-3, 32, 0),
    (33.5, -6, 0),
    (1.5, 70, 0),
    (8.5, 69, 1),
    (13.5, 70, 0),
    (18.5, 69, 1),
    (23.5, 70, 0),
    (33.5, 70, 0),
    (28.5, 69, 1),
    (104.5, 70, 0),
    (108, 70, 12),
    (98.5, 69, 1),
    (93.5, 70, 0),
    (88.5, 69, 1),
    (83.5, 70, 0),
    (78.5, 69, 1),
    (73.5, 70, 0),
    (68.5, 69, 1),
    (63.5, 70, 0),
    (58.5, 69, 1),
    (53.5, 70, 0),
    (48.5, 69, 1),
    (43.5, 70, 0),
    (38.5, 69, 1),
    (108, 27, 0),
    (108, -16, 12),
    (93, -16, 0),
    (74, -11, 0),
]))
chamfer.setExpression("Size", "Params.chamfer_size")

sketch11 = body.newObject("Sketcher::SketchObject", "Sketch010")
sketch11.AttachmentSupport = (doc.getObject("XY_Plane"), [""])
sketch11.MapMode = "FlatFace"
sketch11.AttachmentOffset = App.Placement(App.Vector(0, 0, 3), App.Rotation())
add_polygon(sketch11, [(21, 43), (21, 4), (59, 4), (59, 43)])
sketch11.addConstraint([
    Sketcher.Constraint("Vertical", 0),
    Sketcher.Constraint("Horizontal", 1),
    Sketcher.Constraint("Vertical", 2),
    Sketcher.Constraint("Horizontal", 3),
    Sketcher.Constraint("DistanceX", 1, 1, 1, 2, Q("38 mm")),
    Sketcher.Constraint("DistanceY", 0, 2, 0, 1, Q("39 mm")),
    Sketcher.Constraint("DistanceX", -1, 1, 0, 2, Q("21 mm")),
    Sketcher.Constraint("DistanceY", -1, 1, 0, 2, Q("4 mm")),
])
sketch11.setExpression("Constraints[8]", "Params.sketch11_width")
sketch11.setExpression("Constraints[9]", "Params.sketch11_height")
pad4 = body.newObject("PartDesign::Pad", "Pad003")
pad4.Profile = sketch11
pad4.setExpression("Length", "Params.pad4_length")
body2 = doc.addObject("PartDesign::Body", "Body001")
doc.recompute()

body.Placement = App.Placement(App.Vector(0, 0, -2.5), App.Rotation(App.Vector(0, 0, 1), 0))
boolean = body2.newObject("PartDesign::Boolean", "Boolean")
boolean.Type = "Fuse"
boolean.addObjects([body])

doc.recompute()
